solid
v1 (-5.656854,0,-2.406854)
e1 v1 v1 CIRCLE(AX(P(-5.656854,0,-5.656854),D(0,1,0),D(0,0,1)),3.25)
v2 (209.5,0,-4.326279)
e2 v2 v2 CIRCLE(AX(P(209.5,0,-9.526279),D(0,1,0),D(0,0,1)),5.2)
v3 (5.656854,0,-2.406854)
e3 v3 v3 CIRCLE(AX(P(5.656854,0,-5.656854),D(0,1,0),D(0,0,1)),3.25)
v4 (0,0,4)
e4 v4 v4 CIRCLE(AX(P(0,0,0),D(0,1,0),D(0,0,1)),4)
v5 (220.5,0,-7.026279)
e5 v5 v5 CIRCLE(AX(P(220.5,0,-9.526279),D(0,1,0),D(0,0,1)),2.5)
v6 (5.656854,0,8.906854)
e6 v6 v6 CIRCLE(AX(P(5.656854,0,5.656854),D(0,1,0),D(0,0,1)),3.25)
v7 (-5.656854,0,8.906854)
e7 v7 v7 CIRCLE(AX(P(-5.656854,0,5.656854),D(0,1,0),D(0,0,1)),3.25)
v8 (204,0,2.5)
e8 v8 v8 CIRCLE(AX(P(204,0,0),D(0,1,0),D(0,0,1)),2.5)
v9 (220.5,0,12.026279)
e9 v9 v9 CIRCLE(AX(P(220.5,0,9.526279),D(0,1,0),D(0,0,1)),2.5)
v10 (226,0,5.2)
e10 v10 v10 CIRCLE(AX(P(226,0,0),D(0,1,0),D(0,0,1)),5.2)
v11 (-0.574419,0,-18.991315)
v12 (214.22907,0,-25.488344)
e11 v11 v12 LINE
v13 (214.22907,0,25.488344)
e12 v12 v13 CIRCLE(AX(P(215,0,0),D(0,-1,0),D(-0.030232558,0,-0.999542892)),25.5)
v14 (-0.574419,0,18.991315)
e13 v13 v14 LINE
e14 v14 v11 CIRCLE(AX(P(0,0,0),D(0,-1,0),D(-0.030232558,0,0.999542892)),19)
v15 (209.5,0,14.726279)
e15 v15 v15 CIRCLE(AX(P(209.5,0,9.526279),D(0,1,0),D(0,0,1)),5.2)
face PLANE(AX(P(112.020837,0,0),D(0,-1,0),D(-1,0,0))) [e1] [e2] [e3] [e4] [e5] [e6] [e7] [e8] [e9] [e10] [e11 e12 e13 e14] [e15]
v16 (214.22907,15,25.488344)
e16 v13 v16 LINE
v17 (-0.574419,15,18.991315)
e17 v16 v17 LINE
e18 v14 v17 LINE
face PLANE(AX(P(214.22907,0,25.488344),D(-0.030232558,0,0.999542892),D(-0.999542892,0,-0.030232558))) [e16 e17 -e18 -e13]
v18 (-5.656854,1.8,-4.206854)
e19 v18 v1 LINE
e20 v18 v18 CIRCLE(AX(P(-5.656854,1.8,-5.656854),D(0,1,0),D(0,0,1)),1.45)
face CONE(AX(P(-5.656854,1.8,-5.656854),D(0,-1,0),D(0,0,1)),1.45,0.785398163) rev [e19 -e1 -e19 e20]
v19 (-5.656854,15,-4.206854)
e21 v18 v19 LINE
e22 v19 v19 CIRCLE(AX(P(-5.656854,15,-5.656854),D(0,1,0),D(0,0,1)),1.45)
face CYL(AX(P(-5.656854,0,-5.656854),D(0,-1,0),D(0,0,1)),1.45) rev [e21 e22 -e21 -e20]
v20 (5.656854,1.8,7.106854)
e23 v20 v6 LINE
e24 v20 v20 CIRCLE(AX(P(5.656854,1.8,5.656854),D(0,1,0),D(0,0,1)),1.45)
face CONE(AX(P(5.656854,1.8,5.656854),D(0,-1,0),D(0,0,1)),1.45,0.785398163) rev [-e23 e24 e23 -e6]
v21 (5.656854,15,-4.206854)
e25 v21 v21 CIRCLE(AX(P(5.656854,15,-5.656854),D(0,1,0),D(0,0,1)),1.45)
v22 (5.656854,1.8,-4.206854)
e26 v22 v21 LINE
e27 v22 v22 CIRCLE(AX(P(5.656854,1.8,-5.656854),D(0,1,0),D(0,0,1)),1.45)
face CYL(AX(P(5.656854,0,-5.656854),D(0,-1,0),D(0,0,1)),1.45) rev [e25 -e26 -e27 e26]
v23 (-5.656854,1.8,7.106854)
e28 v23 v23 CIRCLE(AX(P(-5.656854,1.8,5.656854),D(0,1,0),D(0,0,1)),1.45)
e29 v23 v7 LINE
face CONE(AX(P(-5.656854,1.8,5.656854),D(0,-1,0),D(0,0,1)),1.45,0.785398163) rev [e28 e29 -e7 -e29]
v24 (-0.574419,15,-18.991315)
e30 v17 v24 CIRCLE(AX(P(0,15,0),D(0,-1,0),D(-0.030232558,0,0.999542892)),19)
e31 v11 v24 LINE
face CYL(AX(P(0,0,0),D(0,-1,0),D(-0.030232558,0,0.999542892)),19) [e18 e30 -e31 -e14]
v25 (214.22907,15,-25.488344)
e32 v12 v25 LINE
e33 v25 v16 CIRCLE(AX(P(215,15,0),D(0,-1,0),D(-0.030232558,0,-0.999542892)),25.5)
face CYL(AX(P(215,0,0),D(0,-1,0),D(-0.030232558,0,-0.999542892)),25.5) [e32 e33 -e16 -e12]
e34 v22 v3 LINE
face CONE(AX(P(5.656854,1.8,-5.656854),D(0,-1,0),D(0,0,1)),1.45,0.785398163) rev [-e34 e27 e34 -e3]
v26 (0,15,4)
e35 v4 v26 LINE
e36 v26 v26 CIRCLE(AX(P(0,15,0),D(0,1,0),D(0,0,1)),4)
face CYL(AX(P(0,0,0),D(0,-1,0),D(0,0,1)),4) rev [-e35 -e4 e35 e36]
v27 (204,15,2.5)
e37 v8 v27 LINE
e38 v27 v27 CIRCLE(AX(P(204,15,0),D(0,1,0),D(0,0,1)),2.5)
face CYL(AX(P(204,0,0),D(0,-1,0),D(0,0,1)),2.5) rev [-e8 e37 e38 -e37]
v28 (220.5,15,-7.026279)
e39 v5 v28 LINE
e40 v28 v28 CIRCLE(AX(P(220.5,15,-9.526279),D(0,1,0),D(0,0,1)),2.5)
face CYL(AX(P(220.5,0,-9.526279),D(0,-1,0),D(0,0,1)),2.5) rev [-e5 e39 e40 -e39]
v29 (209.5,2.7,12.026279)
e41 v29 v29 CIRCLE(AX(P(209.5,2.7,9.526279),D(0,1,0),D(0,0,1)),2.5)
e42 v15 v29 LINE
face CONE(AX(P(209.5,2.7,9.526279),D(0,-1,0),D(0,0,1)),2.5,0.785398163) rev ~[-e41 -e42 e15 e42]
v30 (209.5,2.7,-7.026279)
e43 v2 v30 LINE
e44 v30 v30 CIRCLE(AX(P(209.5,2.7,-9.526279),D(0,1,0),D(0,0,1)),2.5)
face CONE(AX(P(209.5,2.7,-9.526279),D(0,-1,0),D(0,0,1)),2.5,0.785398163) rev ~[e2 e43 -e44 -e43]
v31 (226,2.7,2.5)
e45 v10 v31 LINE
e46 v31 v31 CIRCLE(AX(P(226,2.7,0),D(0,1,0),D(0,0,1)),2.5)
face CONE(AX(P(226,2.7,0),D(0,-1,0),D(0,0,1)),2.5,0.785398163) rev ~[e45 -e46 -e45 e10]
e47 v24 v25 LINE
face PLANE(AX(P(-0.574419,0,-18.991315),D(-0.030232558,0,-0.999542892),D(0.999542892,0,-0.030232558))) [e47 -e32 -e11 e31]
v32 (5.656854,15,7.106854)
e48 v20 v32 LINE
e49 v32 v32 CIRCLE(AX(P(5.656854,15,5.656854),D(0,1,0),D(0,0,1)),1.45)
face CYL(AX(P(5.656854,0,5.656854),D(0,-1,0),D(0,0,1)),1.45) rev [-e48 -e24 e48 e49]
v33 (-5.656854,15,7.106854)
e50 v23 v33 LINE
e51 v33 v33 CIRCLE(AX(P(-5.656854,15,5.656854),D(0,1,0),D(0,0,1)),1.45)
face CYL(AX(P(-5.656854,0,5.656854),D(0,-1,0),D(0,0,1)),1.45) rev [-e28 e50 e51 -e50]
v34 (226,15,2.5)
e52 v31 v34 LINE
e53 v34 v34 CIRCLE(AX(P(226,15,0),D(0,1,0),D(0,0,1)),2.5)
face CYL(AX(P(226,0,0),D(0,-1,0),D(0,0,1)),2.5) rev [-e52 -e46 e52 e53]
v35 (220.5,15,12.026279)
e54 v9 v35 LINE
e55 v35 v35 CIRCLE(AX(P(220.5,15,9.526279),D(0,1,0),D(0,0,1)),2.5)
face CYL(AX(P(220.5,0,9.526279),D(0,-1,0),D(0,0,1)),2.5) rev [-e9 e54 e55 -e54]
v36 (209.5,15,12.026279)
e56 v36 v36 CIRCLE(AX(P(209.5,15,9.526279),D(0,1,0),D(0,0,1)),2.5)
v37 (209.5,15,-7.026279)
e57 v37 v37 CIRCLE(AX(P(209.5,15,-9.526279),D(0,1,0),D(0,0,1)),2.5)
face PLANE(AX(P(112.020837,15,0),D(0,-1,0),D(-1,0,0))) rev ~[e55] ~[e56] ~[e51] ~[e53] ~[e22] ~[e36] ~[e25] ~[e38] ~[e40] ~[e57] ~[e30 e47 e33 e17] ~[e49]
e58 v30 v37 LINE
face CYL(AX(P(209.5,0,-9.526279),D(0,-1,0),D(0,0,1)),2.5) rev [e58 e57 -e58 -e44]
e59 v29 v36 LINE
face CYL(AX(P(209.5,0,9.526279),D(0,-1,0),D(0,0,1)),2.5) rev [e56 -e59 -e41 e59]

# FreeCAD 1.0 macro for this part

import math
import FreeCAD as App
import Part
import Sketcher


def edges_at(feature, points):
    """Names of the edges that pass closest to the given points."""
    edges = feature.Shape.Edges
    near = lambda p: min(range(len(edges)), key=lambda i: edges[i].distToShape(Part.Vertex(*p))[0])
    return sorted({f"Edge{near(p) + 1}" for p in points})

doc = App.newDocument("Part")
body = doc.addObject("PartDesign::Body", "Body")

# Sketch on XZ plane
sketch1 = body.newObject("Sketcher::SketchObject", "Sketch")
sketch1.AttachmentSupport = (doc.getObject("XZ_Plane"), [""])
sketch1.MapMode = "FlatFace"
sketch1.addGeometry(Part.LineSegment(App.Vector(214.22907, -25.488344, 0), App.Vector(-0.574419, -18.991315, 0)), False)
sketch1.addGeometry(Part.ArcOfCircle(Part.Circle(App.Vector(0, 0, 0), App.Vector(0, 0, 1), 19), math.radians(91.732462), math.radians(268.267538)), False)
sketch1.addGeometry(Part.LineSegment(App.Vector(-0.574419, 18.991315, 0), App.Vector(214.22907, 25.488344, 0)), False)
sketch1.addGeometry(Part.ArcOfCircle(Part.Circle(App.Vector(215, 0, 0), App.Vector(0, 0, 1), 25.5), math.radians(-91.732462), math.radians(91.732462)), False)
sketch1.addGeometry(Part.Circle(App.Vector(220.5, 9.526279, 0), App.Vector(0, 0, 1), 2.5), False)
sketch1.addGeometry(Part.Circle(App.Vector(209.5, 9.526279, 0), App.Vector(0, 0, 1), 2.5), False)
sketch1.addGeometry(Part.Circle(App.Vector(226, 0, 0), App.Vector(0, 0, 1), 2.5), False)
sketch1.addGeometry(Part.Circle(App.Vector(204, 0, 0), App.Vector(0, 0, 1), 2.5), False)
sketch1.addGeometry(Part.Circle(App.Vector(5.656854, 5.656854, 0), App.Vector(0, 0, 1), 1.45), False)
sketch1.addGeometry(Part.Circle(App.Vector(-5.656854, 5.656854, 0), App.Vector(0, 0, 1), 1.45), False)
sketch1.addGeometry(Part.Circle(App.Vector(0, 0, 0), App.Vector(0, 0, 1), 4), False)
sketch1.addGeometry(Part.Circle(App.Vector(220.5, -9.526279, 0), App.Vector(0, 0, 1), 2.5), False)
sketch1.addGeometry(Part.Circle(App.Vector(209.5, -9.526279, 0), App.Vector(0, 0, 1), 2.5), False)
sketch1.addGeometry(Part.Circle(App.Vector(5.656854, -5.656854, 0), App.Vector(0, 0, 1), 1.45), False)
sketch1.addGeometry(Part.Circle(App.Vector(-5.656854, -5.656854, 0), App.Vector(0, 0, 1), 1.45), False)
sketch1.addConstraint(Sketcher.Constraint("Tangent", 0, 2, 1, 2))
sketch1.addConstraint(Sketcher.Constraint("Tangent", 1, 1, 2, 1))
sketch1.addConstraint(Sketcher.Constraint("Tangent", 2, 2, 3, 2))
sketch1.addConstraint(Sketcher.Constraint("Tangent", 3, 1, 0, 1))
sketch1.addConstraint(Sketcher.Constraint("Coincident", 1, 3, -1, 1))
sketch1.addConstraint(Sketcher.Constraint("Coincident", 10, 3, -1, 1))
sketch1.addConstraint(Sketcher.Constraint("Equal", 4, 5))
sketch1.addConstraint(Sketcher.Constraint("Equal", 5, 6))
sketch1.addConstraint(Sketcher.Constraint("Equal", 6, 7))
sketch1.addConstraint(Sketcher.Constraint("Equal", 8, 9))
sketch1.addConstraint(Sketcher.Constraint("Equal", 7, 11))
sketch1.addConstraint(Sketcher.Constraint("Equal", 11, 12))
sketch1.addConstraint(Sketcher.Constraint("Equal", 9, 13))
sketch1.addConstraint(Sketcher.Constraint("Equal", 13, 14))
sketch1.addConstraint(Sketcher.Constraint("Symmetric", 9, 3, 13, 3, -1, 1))
sketch1.addConstraint(Sketcher.Constraint("Symmetric", 8, 3, 14, 3, -1, 1))
sketch1.addConstraint(Sketcher.Constraint("Symmetric", 8, 3, 9, 3, -2))
sketch1.addConstraint(Sketcher.Constraint("Symmetric", 4, 3, 11, 3, -1))
sketch1.addConstraint(Sketcher.Constraint("Symmetric", 5, 3, 12, 3, -1))
sketch1.addConstraint(Sketcher.Constraint("PointOnObject", 3, 3, -1))
sketch1.addConstraint(Sketcher.Constraint("PointOnObject", 6, 3, -1))
sketch1.addConstraint(Sketcher.Constraint("PointOnObject", 7, 3, -1))
sketch1.addConstraint(Sketcher.Constraint("Horizontal", 4, 3, 5, 3))
sketch1.addConstraint(Sketcher.Constraint("Diameter", 4, 5.0))
sketch1.addConstraint(Sketcher.Constraint("Diameter", 10, 8.0))
sketch1.addConstraint(Sketcher.Constraint("Radius", 1, 19.0))
sketch1.addConstraint(Sketcher.Constraint("Diameter", 8, 2.9))
sketch1.addConstraint(Sketcher.Constraint("Radius", 3, 25.5))
sketch1.addConstraint(Sketcher.Constraint("DistanceX", -1, 1, 3, 3, 215.0))
sketch1.addConstraint(Sketcher.Constraint("DistanceX", -1, 1, 6, 3, 226.0))
sketch1.addConstraint(Sketcher.Constraint("DistanceX", -1, 1, 7, 3, 204.0))
sketch1.addConstraint(Sketcher.Constraint("DistanceX", 5, 3, 4, 3, 11.0))
sketch1.addConstraint(Sketcher.Constraint("DistanceX", -1, 1, 4, 3, 220.5))
sketch1.addConstraint(Sketcher.Constraint("DistanceY", -1, 1, 4, 3, 9.526279))
sketch1.addConstraint(Sketcher.Constraint("DistanceX", 9, 3, 8, 3, 11.313708))
sketch1.addConstraint(Sketcher.Constraint("DistanceY", 13, 3, 8, 3, 11.313708))
pad1 = body.newObject("PartDesign::Pad", "Pad")
pad1.Profile = sketch1
pad1.Length = 15
pad1.Reversed = True
doc.recompute()

chamfer = body.newObject("PartDesign::Chamfer", "Chamfer")
chamfer.Base = (pad1, edges_at(pad1, [
    (5.657, 0, -7.107),
    (-5.657, 0, -7.107),
    (5.657, 0, 4.207),
    (-5.657, 0, 4.207),
]))
chamfer.Size = 1.8
doc.recompute()

chamfer2 = body.newObject("PartDesign::Chamfer", "Chamfer001")
chamfer2.Base = (chamfer, edges_at(chamfer, [(209.5, 0, -12.026), (226, 0, -2.5), (209.5, 0, 7.026)]))
chamfer2.Size = 2.7

doc.recompute()
